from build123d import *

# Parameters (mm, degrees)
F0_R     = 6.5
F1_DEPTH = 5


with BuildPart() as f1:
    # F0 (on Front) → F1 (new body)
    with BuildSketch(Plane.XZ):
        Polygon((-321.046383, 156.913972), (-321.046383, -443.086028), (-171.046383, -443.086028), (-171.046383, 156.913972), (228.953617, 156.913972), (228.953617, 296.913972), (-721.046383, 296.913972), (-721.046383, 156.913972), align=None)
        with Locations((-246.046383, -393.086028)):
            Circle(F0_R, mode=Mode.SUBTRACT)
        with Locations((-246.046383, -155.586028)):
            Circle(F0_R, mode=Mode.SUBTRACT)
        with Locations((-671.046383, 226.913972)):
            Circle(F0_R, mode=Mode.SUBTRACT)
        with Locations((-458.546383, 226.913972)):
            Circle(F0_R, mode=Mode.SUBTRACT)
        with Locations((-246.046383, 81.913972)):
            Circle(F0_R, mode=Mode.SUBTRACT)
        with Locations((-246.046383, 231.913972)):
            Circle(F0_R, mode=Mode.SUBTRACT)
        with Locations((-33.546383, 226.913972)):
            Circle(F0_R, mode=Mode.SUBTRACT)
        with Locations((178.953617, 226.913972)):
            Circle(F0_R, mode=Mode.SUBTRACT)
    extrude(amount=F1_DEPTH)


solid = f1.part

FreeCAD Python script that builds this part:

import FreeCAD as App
import Part
import Sketcher
Q = App.Units.Quantity

doc = App.newDocument("Part")
params = doc.addObject("Spreadsheet::Sheet", "Params")
for row, (alias, value) in enumerate([
    ("sketch1_diameter", "13 mm"),
    ("sketch1_width", "150 mm"),
    ("sketch1_width2", "400 mm"),
    ("sketch1_height", "600 mm"),
    ("sketch1_height2", "140 mm"),
    ("pad1_length", "5 mm"),
], start=1):
    params.set(f"A{row}", alias)
    params.set(f"B{row}", "=" + value)
    params.setAlias(f"B{row}", alias)

body = doc.addObject("PartDesign::Body", "Body")

# Sketch on XZ plane
sketch1 = doc.addObject("Sketcher::SketchObject", "Sketch")
body.addObject(sketch1)
sketch1.AttachmentSupport = (doc.XZ_Plane, [""])
sketch1.MapMode = "FlatFace"
sketch1.addGeometry(Part.LineSegment(App.Vector(-321, 157, 0), App.Vector(-321, -443, 0)), False)
sketch1.addGeometry(Part.LineSegment(App.Vector(-321, -443, 0), App.Vector(-171, -443, 0)), False)
sketch1.addGeometry(Part.LineSegment(App.Vector(-171, -443, 0), App.Vector(-171, 157, 0)), False)
sketch1.addGeometry(Part.LineSegment(App.Vector(-171, 157, 0), App.Vector(229, 157, 0)), False)
sketch1.addGeometry(Part.LineSegment(App.Vector(229, 157, 0), App.Vector(229, 297, 0)), False)
sketch1.addGeometry(Part.LineSegment(App.Vector(229, 297, 0), App.Vector(-721, 297, 0)), False)
sketch1.addGeometry(Part.LineSegment(App.Vector(-721, 297, 0), App.Vector(-721, 157, 0)), False)
sketch1.addGeometry(Part.LineSegment(App.Vector(-721, 157, 0), App.Vector(-321, 157, 0)), False)
sketch1.addGeometry(Part.Circle(App.Vector(-246, -393, 0), App.Vector(0, 0, 1), 6), False)
sketch1.addGeometry(Part.Circle(App.Vector(-246, -156, 0), App.Vector(0, 0, 1), 6), False)
sketch1.addGeometry(Part.Circle(App.Vector(-671, 227, 0), App.Vector(0, 0, 1), 6), False)
sketch1.addGeometry(Part.Circle(App.Vector(-459, 227, 0), App.Vector(0, 0, 1), 6), False)
sketch1.addGeometry(Part.Circle(App.Vector(-246, 82, 0), App.Vector(0, 0, 1), 6), False)
sketch1.addGeometry(Part.Circle(App.Vector(-246, 232, 0), App.Vector(0, 0, 1), 6), False)
sketch1.addGeometry(Part.Circle(App.Vector(-34, 227, 0), App.Vector(0, 0, 1), 6), False)
sketch1.addGeometry(Part.Circle(App.Vector(179, 227, 0), App.Vector(0, 0, 1), 6), False)
sketch1.addConstraint(Sketcher.Constraint("Coincident", 0, 2, 1, 1))
sketch1.addConstraint(Sketcher.Constraint("Coincident", 1, 2, 2, 1))
sketch1.addConstraint(Sketcher.Constraint("Coincident", 2, 2, 3, 1))
sketch1.addConstraint(Sketcher.Constraint("Coincident", 3, 2, 4, 1))
sketch1.addConstraint(Sketcher.Constraint("Coincident", 4, 2, 5, 1))
sketch1.addConstraint(Sketcher.Constraint("Coincident", 5, 2, 6, 1))
sketch1.addConstraint(Sketcher.Constraint("Coincident", 6, 2, 7, 1))
sketch1.addConstraint(Sketcher.Constraint("Coincident", 7, 2, 0, 1))
sketch1.addConstraint(Sketcher.Constraint("Vertical", 0))
sketch1.addConstraint(Sketcher.Constraint("Horizontal", 1))
sketch1.addConstraint(Sketcher.Constraint("Vertical", 2))
sketch1.addConstraint(Sketcher.Constraint("Horizontal", 3))
sketch1.addConstraint(Sketcher.Constraint("Vertical", 4))
sketch1.addConstraint(Sketcher.Constraint("Horizontal", 5))
sketch1.addConstraint(Sketcher.Constraint("Vertical", 6))
sketch1.addConstraint(Sketcher.Constraint("Horizontal", 7))
sketch1.addConstraint(Sketcher.Constraint("Equal", 8, 9))
sketch1.addConstraint(Sketcher.Constraint("Equal", 9, 10))
sketch1.addConstraint(Sketcher.Constraint("Equal", 10, 11))
sketch1.addConstraint(Sketcher.Constraint("Equal", 11, 12))
sketch1.addConstraint(Sketcher.Constraint("Equal", 12, 13))
sketch1.addConstraint(Sketcher.Constraint("Equal", 13, 14))
sketch1.addConstraint(Sketcher.Constraint("Equal", 14, 15))
sketch1.addConstraint(Sketcher.Constraint("Horizontal", 10, 3, 11, 3))
sketch1.addConstraint(Sketcher.Constraint("Horizontal", 11, 3, 14, 3))
sketch1.addConstraint(Sketcher.Constraint("Horizontal", 14, 3, 15, 3))
sketch1.addConstraint(Sketcher.Constraint("Horizontal", 3, 2, 6, 2))
sketch1.addConstraint(Sketcher.Constraint("Vertical", 8, 3, 9, 3))
sketch1.addConstraint(Sketcher.Constraint("Vertical", 9, 3, 12, 3))
sketch1.addConstraint(Sketcher.Constraint("Vertical", 12, 3, 13, 3))
sketch1.addConstraint(Sketcher.Constraint("Equal", 3, 7))
sketch1.addConstraint(Sketcher.Constraint("Diameter", 8, Q("13 mm")))
sketch1.addConstraint(Sketcher.Constraint("DistanceX", 1, 1, 1, 2, Q("150 mm")))
sketch1.addConstraint(Sketcher.Constraint("DistanceX", 3, 1, 3, 2, Q("400 mm")))
sketch1.addConstraint(Sketcher.Constraint("DistanceY", 0, 2, 0, 1, Q("600 mm")))
sketch1.addConstraint(Sketcher.Constraint("DistanceY", 4, 1, 4, 2, Q("140 mm")))
sketch1.addConstraint(Sketcher.Constraint("DistanceX", 10, 3, 9, 3, Q("425 mm")))
sketch1.addConstraint(Sketcher.Constraint("DistanceY", 8, 3, 10, 3, Q("620 mm")))
sketch1.addConstraint(Sketcher.Constraint("DistanceY", 12, 3, 11, 3, Q("145 mm")))
sketch1.addConstraint(Sketcher.Constraint("DistanceY", 12, 3, 13, 3, Q("150 mm")))
sketch1.addConstraint(Sketcher.Constraint("DistanceX", 11, 3, 14, 3, Q("425 mm")))
sketch1.addConstraint(Sketcher.Constraint("DistanceX", 13, 3, 15, 3, Q("425 mm")))
sketch1.addConstraint(Sketcher.Constraint("DistanceX", 0, 2, 8, 3, Q("75 mm")))
sketch1.addConstraint(Sketcher.Constraint("DistanceY", 0, 2, 8, 3, Q("50 mm")))
sketch1.addConstraint(Sketcher.Constraint("DistanceY", 8, 3, 9, 3, Q("237.5 mm")))
sketch1.addConstraint(Sketcher.Constraint("DistanceX", 10, 3, 11, 3, Q("212.5 mm")))
sketch1.addConstraint(Sketcher.Constraint("DistanceY", 8, 3, -1, 1, Q("393.086028 mm")))
sketch1.addConstraint(Sketcher.Constraint("DistanceX", 8, 3, -1, 1, Q("246.046383 mm")))
sketch1.setExpression("Constraints[31]", "Params.sketch1_diameter")
sketch1.setExpression("Constraints[32]", "Params.sketch1_width")
sketch1.setExpression("Constraints[33]", "Params.sketch1_width2")
sketch1.setExpression("Constraints[34]", "Params.sketch1_height")
sketch1.setExpression("Constraints[35]", "Params.sketch1_height2")
pad1 = doc.addObject("PartDesign::Pad", "Pad")
body.addObject(pad1)
pad1.Profile = sketch1
pad1.setExpression("Length", "Params.pad1_length")

doc.recompute()
